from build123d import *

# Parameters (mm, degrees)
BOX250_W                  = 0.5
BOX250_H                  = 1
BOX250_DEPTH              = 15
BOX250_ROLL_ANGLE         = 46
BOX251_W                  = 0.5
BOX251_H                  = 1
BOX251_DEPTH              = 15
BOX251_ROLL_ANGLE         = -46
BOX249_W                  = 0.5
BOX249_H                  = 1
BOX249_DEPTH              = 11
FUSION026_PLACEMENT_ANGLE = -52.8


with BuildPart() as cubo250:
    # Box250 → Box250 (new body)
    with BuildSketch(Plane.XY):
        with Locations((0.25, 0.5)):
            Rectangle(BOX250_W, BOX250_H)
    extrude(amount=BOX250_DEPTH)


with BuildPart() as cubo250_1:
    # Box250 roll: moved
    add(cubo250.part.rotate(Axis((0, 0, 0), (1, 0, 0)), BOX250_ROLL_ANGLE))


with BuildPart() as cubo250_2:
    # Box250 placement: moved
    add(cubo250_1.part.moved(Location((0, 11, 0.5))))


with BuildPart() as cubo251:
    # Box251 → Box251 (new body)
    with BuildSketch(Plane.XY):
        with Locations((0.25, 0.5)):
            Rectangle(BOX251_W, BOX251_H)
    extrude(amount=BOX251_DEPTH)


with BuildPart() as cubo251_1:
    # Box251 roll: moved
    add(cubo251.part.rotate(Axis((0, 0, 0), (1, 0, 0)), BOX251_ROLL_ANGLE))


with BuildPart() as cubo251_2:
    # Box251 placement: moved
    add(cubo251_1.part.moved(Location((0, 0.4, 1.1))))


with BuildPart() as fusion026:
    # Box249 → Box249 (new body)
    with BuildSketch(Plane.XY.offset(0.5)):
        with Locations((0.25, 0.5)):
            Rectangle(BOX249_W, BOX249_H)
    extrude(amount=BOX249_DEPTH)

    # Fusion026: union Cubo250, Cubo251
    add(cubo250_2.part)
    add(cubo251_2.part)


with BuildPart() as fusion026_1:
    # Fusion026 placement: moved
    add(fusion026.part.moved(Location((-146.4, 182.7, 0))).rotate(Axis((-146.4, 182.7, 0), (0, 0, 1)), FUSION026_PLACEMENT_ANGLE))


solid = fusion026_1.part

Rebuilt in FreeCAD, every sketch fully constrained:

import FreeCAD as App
import Part
import Sketcher

doc = App.newDocument("Part")
params = doc.addObject("Spreadsheet::Sheet", "Params")
for row, (alias, value) in enumerate([
    ("sketch1_height", "1 mm"),
    ("sketch1_width", "0.5 mm"),
    ("pad1_length", "15 mm"),
    ("sketch2_height", "1 mm"),
    ("sketch2_width", "0.5 mm"),
    ("pad2_length", "15 mm"),
    ("sketch3_height", "1 mm"),
    ("sketch3_width", "0.5 mm"),
    ("pad3_length", "11 mm"),
], start=1):
    params.set(f"A{row}", alias)
    params.set(f"B{row}", "=" + value)
    params.setAlias(f"B{row}", alias)

body = doc.addObject("PartDesign::Body", "Body")

# Sketch on XY plane
sketch1 = body.newObject("Sketcher::SketchObject", "Sketch")
sketch1.AttachmentSupport = (doc.getObject("XY_Plane"), [""])
sketch1.MapMode = "FlatFace"
sketch1.addGeometry([
    Part.LineSegment(App.Vector(0, 1, 0), App.Vector(0, 0, 0)),
    Part.LineSegment(App.Vector(0, 0, 0), App.Vector(0.5, 0, 0)),
    Part.LineSegment(App.Vector(0.5, 0, 0), App.Vector(0.5, 1, 0)),
    Part.LineSegment(App.Vector(0.5, 1, 0), App.Vector(0, 1, 0)),
], False)
sketch1.addConstraint([
    Sketcher.Constraint("Coincident", 0, 2, 1, 1),
    Sketcher.Constraint("Coincident", 1, 2, 2, 1),
    Sketcher.Constraint("Coincident", 2, 2, 3, 1),
    Sketcher.Constraint("Coincident", 3, 2, 0, 1),
    Sketcher.Constraint("Vertical", 0),
    Sketcher.Constraint("Horizontal", 1),
    Sketcher.Constraint("Vertical", 2),
    Sketcher.Constraint("Horizontal", 3),
    Sketcher.Constraint("Coincident", 0, 2, -1, 1),
    Sketcher.Constraint("DistanceY", 0, 2, 0, 1, 1.0),
    Sketcher.Constraint("DistanceX", 1, 1, 1, 2, 0.5),
])
sketch1.setExpression("Constraints[9]", "Params.sketch1_height")
sketch1.setExpression("Constraints[10]", "Params.sketch1_width")
pad1 = body.newObject("PartDesign::Pad", "Pad")
pad1.Profile = sketch1
pad1.setExpression("Length", "Params.pad1_length")
body2 = doc.addObject("PartDesign::Body", "Body001")
doc.recompute()

body.Placement = App.Placement(App.Vector(0, 0, 0), App.Rotation(App.Vector(1, 0, 0), 46))
boolean = body2.newObject("PartDesign::Boolean", "Boolean")
boolean.Type = "Fuse"
boolean.addObjects([body])
body3 = doc.addObject("PartDesign::Body", "Body002")
doc.recompute()

body2.Placement = App.Placement(App.Vector(0, 11, 0.5), App.Rotation(App.Vector(0, 0, 1), 0))
boolean2 = body3.newObject("PartDesign::Boolean", "Boolean001")
boolean2.Type = "Fuse"
boolean2.addObjects([body2])
body4 = doc.addObject("PartDesign::Body", "Body003")

# Sketch on XY plane
sketch2 = body4.newObject("Sketcher::SketchObject", "Sketch001")
sketch2.AttachmentSupport = (doc.getObject("XY_Plane003"), [""])
sketch2.MapMode = "FlatFace"
sketch2.addGeometry([
    Part.LineSegment(App.Vector(0, 1, 0), App.Vector(0, 0, 0)),
    Part.LineSegment(App.Vector(0, 0, 0), App.Vector(0.5, 0, 0)),
    Part.LineSegment(App.Vector(0.5, 0, 0), App.Vector(0.5, 1, 0)),
    Part.LineSegment(App.Vector(0.5, 1, 0), App.Vector(0, 1, 0)),
], False)
sketch2.addConstraint([
    Sketcher.Constraint("Coincident", 0, 2, 1, 1),
    Sketcher.Constraint("Coincident", 1, 2, 2, 1),
    Sketcher.Constraint("Coincident", 2, 2, 3, 1),
    Sketcher.Constraint("Coincident", 3, 2, 0, 1),
    Sketcher.Constraint("Vertical", 0),
    Sketcher.Constraint("Horizontal", 1),
    Sketcher.Constraint("Vertical", 2),
    Sketcher.Constraint("Horizontal", 3),
    Sketcher.Constraint("Coincident", 0, 2, -1, 1),
    Sketcher.Constraint("DistanceY", 0, 2, 0, 1, 1.0),
    Sketcher.Constraint("DistanceX", 1, 1, 1, 2, 0.5),
])
sketch2.setExpression("Constraints[9]", "Params.sketch2_height")
sketch2.setExpression("Constraints[10]", "Params.sketch2_width")
pad2 = body4.newObject("PartDesign::Pad", "Pad001")
pad2.Profile = sketch2
pad2.setExpression("Length", "Params.pad2_length")
body5 = doc.addObject("PartDesign::Body", "Body004")
doc.recompute()

body4.Placement = App.Placement(App.Vector(0, 0, 0), App.Rotation(App.Vector(1, 0, 0), 314))
boolean3 = body5.newObject("PartDesign::Boolean", "Boolean002")
boolean3.Type = "Fuse"
boolean3.addObjects([body4])
body6 = doc.addObject("PartDesign::Body", "Body005")
doc.recompute()

body5.Placement = App.Placement(App.Vector(0, 0.4, 1.1), App.Rotation(App.Vector(0, 0, 1), 0))
boolean4 = body6.newObject("PartDesign::Boolean", "Boolean003")
boolean4.Type = "Fuse"
boolean4.addObjects([body5])
body7 = doc.addObject("PartDesign::Body", "Body006")

# Sketch on XY plane
sketch3 = body7.newObject("Sketcher::SketchObject", "Sketch002")
sketch3.AttachmentSupport = (doc.getObject("XY_Plane006"), [""])
sketch3.MapMode = "FlatFace"
sketch3.AttachmentOffset = App.Placement(App.Vector(0, 0, 0.5), App.Rotation())
sketch3.addGeometry([
    Part.LineSegment(App.Vector(0, 1, 0), App.Vector(0, 0, 0)),
    Part.LineSegment(App.Vector(0, 0, 0), App.Vector(0.5, 0, 0)),
    Part.LineSegment(App.Vector(0.5, 0, 0), App.Vector(0.5, 1, 0)),
    Part.LineSegment(App.Vector(0.5, 1, 0), App.Vector(0, 1, 0)),
], False)
sketch3.addConstraint([
    Sketcher.Constraint("Coincident", 0, 2, 1, 1),
    Sketcher.Constraint("Coincident", 1, 2, 2, 1),
    Sketcher.Constraint("Coincident", 2, 2, 3, 1),
    Sketcher.Constraint("Coincident", 3, 2, 0, 1),
    Sketcher.Constraint("Vertical", 0),
    Sketcher.Constraint("Horizontal", 1),
    Sketcher.Constraint("Vertical", 2),
    Sketcher.Constraint("Horizontal", 3),
    Sketcher.Constraint("Coincident", 0, 2, -1, 1),
    Sketcher.Constraint("DistanceY", 0, 2, 0, 1, 1.0),
    Sketcher.Constraint("DistanceX", 1, 1, 1, 2, 0.5),
])
sketch3.setExpression("Constraints[9]", "Params.sketch3_height")
sketch3.setExpression("Constraints[10]", "Params.sketch3_width")
pad3 = body7.newObject("PartDesign::Pad", "Pad002")
pad3.Profile = sketch3
pad3.setExpression("Length", "Params.pad3_length")
doc.recompute()

boolean5 = body7.newObject("PartDesign::Boolean", "Boolean004")
boolean5.Type = "Fuse"
boolean5.addObjects([body3])
doc.recompute()

boolean6 = body7.newObject("PartDesign::Boolean", "Boolean005")
boolean6.Type = "Fuse"
boolean6.addObjects([body6])
body8 = doc.addObject("PartDesign::Body", "Body007")
doc.recompute()

body7.Placement = App.Placement(App.Vector(-146.4, 182.7, 0), App.Rotation(App.Vector(0, 0, 1), 307.2))
boolean7 = body8.newObject("PartDesign::Boolean", "Boolean006")
boolean7.Type = "Fuse"
boolean7.addObjects([body7])

doc.recompute()
